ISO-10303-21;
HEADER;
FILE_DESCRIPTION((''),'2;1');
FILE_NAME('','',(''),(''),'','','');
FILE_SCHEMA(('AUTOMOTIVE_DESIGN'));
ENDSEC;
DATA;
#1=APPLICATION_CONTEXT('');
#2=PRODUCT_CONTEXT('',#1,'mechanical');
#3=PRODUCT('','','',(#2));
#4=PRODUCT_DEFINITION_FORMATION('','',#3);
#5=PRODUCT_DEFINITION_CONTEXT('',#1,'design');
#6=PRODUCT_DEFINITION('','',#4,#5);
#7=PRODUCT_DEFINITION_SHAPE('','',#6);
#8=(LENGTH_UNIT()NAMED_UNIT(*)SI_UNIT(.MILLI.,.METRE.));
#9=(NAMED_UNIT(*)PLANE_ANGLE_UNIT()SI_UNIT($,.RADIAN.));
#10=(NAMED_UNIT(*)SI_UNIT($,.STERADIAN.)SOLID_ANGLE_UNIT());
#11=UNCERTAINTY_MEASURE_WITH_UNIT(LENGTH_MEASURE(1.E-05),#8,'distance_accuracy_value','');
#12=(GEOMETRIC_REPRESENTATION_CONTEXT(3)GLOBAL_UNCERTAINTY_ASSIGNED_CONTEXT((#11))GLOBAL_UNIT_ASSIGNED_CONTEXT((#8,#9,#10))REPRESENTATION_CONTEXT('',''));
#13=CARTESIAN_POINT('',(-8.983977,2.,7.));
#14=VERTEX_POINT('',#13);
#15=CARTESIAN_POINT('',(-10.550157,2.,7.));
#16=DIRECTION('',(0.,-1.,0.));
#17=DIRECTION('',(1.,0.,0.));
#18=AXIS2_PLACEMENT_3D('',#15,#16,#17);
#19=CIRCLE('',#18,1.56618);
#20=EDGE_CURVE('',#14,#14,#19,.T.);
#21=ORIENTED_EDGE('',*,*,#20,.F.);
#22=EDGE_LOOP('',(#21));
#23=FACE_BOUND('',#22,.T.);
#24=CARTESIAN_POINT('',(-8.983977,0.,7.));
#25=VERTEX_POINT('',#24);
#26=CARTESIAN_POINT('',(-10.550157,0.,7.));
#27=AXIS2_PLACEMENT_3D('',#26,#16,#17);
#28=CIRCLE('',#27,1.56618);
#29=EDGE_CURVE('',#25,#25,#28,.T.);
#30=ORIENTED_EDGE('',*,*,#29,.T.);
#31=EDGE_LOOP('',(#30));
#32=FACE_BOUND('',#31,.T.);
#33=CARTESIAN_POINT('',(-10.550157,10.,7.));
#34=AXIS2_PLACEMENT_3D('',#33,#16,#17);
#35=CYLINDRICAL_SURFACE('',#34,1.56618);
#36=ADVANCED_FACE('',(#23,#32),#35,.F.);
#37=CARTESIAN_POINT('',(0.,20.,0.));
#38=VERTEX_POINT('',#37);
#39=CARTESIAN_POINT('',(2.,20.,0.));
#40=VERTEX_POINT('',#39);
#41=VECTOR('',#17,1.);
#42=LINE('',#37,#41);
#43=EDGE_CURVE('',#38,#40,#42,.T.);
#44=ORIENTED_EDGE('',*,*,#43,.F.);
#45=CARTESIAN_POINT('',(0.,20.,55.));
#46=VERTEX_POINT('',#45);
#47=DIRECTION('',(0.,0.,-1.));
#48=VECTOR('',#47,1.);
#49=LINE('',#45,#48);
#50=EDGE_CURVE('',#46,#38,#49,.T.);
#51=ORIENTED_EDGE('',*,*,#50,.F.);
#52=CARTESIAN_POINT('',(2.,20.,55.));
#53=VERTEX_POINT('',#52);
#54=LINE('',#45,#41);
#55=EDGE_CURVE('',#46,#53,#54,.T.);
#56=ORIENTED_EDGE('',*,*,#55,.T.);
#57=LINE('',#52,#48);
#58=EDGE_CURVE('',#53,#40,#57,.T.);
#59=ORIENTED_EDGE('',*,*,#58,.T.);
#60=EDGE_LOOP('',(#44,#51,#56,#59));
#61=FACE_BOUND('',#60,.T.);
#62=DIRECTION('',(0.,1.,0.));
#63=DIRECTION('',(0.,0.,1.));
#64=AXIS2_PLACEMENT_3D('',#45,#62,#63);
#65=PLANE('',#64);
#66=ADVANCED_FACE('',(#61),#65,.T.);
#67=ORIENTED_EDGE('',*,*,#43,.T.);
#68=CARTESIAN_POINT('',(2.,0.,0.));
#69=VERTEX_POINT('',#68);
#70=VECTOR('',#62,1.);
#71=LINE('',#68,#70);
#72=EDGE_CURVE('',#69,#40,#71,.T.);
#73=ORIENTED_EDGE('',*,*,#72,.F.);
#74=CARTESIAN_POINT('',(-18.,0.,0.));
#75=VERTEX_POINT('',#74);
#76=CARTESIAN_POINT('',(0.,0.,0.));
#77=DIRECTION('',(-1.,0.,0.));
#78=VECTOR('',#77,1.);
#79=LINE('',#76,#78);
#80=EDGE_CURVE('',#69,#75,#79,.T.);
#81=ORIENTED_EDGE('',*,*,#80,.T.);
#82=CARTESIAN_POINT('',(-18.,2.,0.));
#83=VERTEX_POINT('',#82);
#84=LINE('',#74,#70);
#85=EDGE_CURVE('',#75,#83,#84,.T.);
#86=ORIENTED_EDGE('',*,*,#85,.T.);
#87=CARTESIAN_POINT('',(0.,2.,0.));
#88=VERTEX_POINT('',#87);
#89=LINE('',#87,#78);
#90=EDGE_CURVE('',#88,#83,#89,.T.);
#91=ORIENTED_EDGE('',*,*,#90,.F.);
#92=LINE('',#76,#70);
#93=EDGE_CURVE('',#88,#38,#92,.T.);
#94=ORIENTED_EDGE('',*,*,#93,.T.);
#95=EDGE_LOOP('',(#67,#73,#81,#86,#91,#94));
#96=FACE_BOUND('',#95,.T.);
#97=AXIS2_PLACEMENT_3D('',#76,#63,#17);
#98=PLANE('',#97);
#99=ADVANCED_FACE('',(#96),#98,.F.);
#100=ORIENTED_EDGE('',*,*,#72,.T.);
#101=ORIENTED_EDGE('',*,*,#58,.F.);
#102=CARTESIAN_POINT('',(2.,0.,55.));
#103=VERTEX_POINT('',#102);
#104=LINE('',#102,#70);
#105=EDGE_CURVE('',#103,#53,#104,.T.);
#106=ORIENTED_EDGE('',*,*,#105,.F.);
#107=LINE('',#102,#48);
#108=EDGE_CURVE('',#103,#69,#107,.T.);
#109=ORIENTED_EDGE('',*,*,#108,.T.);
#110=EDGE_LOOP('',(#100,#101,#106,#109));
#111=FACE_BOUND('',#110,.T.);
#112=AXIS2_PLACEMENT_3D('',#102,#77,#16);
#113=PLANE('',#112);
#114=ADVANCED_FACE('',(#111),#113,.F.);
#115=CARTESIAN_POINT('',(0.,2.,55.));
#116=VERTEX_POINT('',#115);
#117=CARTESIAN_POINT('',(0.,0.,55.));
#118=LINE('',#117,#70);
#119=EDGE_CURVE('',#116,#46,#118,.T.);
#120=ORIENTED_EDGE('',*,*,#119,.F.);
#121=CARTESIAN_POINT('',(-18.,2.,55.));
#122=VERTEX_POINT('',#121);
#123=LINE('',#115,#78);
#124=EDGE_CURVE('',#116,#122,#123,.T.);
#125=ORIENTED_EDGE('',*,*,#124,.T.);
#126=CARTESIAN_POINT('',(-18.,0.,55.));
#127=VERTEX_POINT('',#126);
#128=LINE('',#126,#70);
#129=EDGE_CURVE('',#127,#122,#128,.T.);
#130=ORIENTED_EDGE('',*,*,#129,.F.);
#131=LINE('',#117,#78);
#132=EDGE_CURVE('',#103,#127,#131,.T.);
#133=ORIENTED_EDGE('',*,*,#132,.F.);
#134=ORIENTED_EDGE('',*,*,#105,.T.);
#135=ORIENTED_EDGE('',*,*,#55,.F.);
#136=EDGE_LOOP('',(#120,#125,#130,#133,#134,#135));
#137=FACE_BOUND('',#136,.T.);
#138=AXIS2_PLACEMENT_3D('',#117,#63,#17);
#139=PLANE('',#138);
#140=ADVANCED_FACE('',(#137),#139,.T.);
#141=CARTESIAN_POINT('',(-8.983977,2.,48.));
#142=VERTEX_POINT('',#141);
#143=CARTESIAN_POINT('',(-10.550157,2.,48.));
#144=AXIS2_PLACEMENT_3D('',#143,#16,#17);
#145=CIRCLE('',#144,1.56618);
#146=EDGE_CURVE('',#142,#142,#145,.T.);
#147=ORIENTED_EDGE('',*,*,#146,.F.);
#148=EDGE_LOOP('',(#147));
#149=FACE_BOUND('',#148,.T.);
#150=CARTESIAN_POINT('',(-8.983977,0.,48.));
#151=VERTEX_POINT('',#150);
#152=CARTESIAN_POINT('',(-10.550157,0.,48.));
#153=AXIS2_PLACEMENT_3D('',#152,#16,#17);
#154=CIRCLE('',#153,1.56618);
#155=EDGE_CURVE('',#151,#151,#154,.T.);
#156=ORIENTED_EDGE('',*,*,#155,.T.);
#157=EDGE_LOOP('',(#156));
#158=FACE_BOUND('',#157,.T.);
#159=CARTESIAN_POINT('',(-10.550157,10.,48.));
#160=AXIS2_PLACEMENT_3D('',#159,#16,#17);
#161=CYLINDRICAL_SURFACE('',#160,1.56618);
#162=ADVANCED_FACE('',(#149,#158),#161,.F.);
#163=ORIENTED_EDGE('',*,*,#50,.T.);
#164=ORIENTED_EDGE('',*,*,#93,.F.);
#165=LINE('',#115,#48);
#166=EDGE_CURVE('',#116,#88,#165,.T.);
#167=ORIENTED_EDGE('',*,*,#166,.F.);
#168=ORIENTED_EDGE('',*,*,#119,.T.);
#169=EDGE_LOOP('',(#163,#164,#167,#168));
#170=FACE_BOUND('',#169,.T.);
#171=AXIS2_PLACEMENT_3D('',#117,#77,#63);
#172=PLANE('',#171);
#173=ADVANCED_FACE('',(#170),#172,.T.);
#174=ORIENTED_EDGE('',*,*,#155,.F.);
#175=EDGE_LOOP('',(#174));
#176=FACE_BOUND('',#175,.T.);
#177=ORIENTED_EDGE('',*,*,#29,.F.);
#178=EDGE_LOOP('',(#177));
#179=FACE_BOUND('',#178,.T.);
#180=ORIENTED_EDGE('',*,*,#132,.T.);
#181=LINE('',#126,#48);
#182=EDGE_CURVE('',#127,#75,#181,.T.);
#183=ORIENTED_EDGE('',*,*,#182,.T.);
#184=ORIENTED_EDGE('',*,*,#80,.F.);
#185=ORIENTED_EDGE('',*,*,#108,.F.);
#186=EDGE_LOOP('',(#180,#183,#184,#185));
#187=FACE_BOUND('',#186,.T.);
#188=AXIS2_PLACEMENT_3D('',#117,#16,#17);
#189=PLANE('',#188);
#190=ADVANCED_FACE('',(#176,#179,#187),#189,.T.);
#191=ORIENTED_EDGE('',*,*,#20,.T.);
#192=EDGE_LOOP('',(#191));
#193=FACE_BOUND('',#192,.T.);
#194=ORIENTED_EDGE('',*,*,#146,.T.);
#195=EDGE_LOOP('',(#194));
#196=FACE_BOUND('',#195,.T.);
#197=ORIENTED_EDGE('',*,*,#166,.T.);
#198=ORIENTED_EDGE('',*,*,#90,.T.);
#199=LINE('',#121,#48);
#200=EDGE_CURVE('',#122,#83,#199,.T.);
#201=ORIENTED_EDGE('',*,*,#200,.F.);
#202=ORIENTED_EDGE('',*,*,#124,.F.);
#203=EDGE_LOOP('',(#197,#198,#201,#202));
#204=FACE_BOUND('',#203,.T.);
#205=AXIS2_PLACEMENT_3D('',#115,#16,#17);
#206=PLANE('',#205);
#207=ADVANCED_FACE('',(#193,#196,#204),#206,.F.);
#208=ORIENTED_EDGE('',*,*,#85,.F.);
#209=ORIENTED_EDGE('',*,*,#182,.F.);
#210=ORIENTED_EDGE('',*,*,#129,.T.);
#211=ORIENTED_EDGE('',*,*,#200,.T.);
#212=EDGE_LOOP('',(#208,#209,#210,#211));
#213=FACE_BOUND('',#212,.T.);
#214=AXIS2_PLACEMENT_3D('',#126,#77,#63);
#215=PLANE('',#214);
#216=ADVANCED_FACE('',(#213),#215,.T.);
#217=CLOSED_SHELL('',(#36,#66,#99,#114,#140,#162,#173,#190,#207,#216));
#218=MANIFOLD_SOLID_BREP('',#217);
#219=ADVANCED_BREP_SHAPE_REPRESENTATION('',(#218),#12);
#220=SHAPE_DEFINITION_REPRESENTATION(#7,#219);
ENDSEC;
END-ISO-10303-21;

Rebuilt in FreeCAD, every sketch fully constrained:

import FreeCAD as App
import Part
import Sketcher

V = App.Vector
Q = App.Units.Quantity

doc = App.newDocument("Part")
body = doc.addObject("PartDesign::Body", "Body")

sketch1 = body.newObject("Sketcher::SketchObject", "Sketch")
sketch1.AttachmentSupport = (doc.getObject("XY_Plane"), [""])
sketch1.MapMode = "FlatFace"
sketch1.addGeometry([
    Part.LineSegment(V(-18, 2, 0), V(-18, 0, 0)),
    Part.LineSegment(V(-18, 0, 0), V(2, 0, 0)),
    Part.LineSegment(V(2, 0, 0), V(2, 20, 0)),
    Part.LineSegment(V(2, 20, 0), V(0, 20, 0)),
    Part.LineSegment(V(0, 20, 0), V(0, 2, 0)),
    Part.LineSegment(V(0, 2, 0), V(-18, 2, 0)),
], False)
sketch1.addConstraint([
    Sketcher.Constraint("Coincident", 0, 2, 1, 1),
    Sketcher.Constraint("Coincident", 1, 2, 2, 1),
    Sketcher.Constraint("Coincident", 2, 2, 3, 1),
    Sketcher.Constraint("Coincident", 3, 2, 4, 1),
    Sketcher.Constraint("Coincident", 4, 2, 5, 1),
    Sketcher.Constraint("Coincident", 5, 2, 0, 1),
    Sketcher.Constraint("Vertical", 0),
    Sketcher.Constraint("Horizontal", 1),
    Sketcher.Constraint("Vertical", 2),
    Sketcher.Constraint("Horizontal", 3),
    Sketcher.Constraint("Vertical", 4),
    Sketcher.Constraint("Horizontal", 5),
    Sketcher.Constraint("PointOnObject", 0, 2, -1),
    Sketcher.Constraint("PointOnObject", 3, 2, -2),
    Sketcher.Constraint("Equal", 3, 0),
    Sketcher.Constraint("Equal", 1, 2),
    Sketcher.Constraint("DistanceX", 1, 1, 1, 2, Q("20 mm")),
    Sketcher.Constraint("DistanceX", 3, 2, 3, 1, Q("2 mm")),
])
pad1 = body.newObject("PartDesign::Pad", "Pad")
pad1.Profile = sketch1
pad1.Length = 55

sketch2 = body.newObject("Sketcher::SketchObject", "Sketch001")
sketch2.AttachmentSupport = (doc.getObject("XZ_Plane"), [""])
sketch2.MapMode = "FlatFace"
sketch2.addGeometry([
    Part.Circle(V(-10.6, 7, 0), V(0, 0, 1), 1.6),
    Part.Circle(V(-10.6, 48, 0), V(0, 0, 1), 1.6),
], False)
sketch2.addConstraint([
    Sketcher.Constraint("Equal", 0, 1),
    Sketcher.Constraint("Vertical", 0, 3, 1, 3),
    Sketcher.Constraint("DistanceY", -1, 1, 0, 3, Q("7 mm")),
    Sketcher.Constraint("DistanceY", -1, 1, 1, 3, Q("48 mm")),
    Sketcher.Constraint("Diameter", 0, Q("3.13236 mm")),
    Sketcher.Constraint("DistanceX", 0, 3, -1, 1, Q("10.550157 mm")),
])
pocket1 = body.newObject("PartDesign::Pocket", "Pocket")
pocket1.Profile = sketch2
pocket1.Length = 10

doc.recompute()
